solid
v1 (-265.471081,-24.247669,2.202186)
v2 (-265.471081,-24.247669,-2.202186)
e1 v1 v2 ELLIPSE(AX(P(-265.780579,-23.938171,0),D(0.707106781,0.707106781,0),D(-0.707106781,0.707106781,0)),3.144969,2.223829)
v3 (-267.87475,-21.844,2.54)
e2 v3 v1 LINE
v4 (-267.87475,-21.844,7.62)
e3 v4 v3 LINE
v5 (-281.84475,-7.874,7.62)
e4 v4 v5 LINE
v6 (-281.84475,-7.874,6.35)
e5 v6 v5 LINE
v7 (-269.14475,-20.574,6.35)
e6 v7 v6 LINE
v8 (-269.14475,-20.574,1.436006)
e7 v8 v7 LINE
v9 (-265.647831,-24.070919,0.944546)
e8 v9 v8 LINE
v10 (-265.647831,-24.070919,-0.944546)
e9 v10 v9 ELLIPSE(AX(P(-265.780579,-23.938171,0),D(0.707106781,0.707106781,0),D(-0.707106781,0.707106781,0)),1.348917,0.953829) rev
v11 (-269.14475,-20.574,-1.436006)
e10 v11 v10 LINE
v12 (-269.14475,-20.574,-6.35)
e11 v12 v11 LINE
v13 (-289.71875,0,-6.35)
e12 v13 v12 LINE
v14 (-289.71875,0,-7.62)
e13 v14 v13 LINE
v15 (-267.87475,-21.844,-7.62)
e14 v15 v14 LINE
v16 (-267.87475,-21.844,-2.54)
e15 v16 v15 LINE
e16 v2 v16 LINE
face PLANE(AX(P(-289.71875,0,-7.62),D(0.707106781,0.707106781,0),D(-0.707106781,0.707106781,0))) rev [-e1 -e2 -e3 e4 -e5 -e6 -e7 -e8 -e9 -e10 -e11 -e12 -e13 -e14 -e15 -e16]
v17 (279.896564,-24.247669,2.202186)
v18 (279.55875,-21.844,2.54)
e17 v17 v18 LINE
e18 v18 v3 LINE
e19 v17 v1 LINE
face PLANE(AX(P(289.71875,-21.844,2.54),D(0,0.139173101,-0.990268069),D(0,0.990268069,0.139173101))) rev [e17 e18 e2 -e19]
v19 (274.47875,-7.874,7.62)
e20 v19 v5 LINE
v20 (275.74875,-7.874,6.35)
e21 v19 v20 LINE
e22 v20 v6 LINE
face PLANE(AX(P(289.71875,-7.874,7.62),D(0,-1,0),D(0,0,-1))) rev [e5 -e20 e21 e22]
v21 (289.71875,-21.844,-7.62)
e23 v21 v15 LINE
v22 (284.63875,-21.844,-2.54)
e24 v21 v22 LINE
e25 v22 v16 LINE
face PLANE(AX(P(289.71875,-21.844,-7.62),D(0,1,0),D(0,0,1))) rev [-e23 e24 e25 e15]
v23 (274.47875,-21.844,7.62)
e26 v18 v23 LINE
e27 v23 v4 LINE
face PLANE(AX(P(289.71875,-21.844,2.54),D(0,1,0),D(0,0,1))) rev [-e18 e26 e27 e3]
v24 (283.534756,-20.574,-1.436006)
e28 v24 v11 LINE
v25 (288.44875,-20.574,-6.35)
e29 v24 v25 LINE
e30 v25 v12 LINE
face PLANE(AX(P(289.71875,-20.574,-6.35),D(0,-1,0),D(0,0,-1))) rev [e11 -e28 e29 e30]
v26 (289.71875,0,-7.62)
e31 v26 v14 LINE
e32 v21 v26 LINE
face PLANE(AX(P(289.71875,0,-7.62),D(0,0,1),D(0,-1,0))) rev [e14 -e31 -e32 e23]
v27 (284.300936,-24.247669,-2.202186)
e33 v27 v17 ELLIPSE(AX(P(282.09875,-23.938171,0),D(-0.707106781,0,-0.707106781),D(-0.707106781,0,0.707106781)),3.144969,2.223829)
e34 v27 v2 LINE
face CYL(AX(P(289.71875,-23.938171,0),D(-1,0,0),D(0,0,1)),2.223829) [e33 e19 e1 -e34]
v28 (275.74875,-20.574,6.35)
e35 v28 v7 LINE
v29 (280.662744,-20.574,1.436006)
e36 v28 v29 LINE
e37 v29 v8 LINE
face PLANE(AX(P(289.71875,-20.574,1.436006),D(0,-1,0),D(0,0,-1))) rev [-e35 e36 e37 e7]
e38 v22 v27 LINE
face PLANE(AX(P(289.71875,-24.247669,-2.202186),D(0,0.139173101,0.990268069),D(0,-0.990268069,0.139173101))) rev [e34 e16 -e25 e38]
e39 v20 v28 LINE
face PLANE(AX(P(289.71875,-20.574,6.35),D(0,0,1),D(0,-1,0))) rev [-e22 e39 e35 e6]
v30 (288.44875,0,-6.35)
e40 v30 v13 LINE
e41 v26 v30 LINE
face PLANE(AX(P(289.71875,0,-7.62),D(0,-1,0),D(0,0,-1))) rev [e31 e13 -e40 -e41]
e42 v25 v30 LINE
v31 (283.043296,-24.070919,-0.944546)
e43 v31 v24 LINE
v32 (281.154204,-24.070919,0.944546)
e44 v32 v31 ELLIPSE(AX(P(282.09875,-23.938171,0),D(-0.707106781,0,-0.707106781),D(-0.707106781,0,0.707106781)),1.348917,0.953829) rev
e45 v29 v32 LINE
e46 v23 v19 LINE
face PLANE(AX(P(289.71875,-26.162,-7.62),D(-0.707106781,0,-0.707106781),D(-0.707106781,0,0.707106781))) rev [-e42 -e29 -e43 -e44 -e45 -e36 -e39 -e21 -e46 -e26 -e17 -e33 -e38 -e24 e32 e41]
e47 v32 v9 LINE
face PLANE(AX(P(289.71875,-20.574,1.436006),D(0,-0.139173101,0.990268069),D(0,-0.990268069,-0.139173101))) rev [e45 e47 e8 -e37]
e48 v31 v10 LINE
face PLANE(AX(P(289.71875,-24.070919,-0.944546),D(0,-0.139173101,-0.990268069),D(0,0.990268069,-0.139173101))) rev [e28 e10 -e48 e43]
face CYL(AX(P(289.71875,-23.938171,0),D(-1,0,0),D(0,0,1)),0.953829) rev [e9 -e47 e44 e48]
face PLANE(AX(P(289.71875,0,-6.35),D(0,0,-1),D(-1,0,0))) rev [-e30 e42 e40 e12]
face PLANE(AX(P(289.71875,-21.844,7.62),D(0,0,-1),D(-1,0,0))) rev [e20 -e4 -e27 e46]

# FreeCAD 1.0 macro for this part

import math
import FreeCAD as App
import Part
import Sketcher

V = App.Vector
Q = App.Units.Quantity

doc = App.newDocument("Part")
body = doc.addObject("PartDesign::Body", "Body")

sketch1 = doc.addObject("Sketcher::SketchObject", "Sketch")
body.addObject(sketch1)
sketch1.AttachmentSupport = (doc.YZ_Plane, [""])
sketch1.MapMode = "FlatFace"
sketch1.addGeometry([
    Part.LineSegment(V(-21.8, -7.6, 0), V(0, -7.6, 0)),
    Part.LineSegment(V(0, -7.6, 0), V(0, -6.3, 0)),
    Part.LineSegment(V(0, -6.3, 0), V(-20.6, -6.3, 0)),
    Part.LineSegment(V(-20.6, -6.3, 0), V(-20.6, -1.4, 0)),
    Part.LineSegment(V(-20.6, -1.4, 0), V(-24.1, -0.9, 0)),
    Part.ArcOfCircle(Part.Circle(V(-23.9, 0, 0), V(0, 0, 1), 1), math.radians(98), math.radians(262)),
    Part.LineSegment(V(-24.1, 0.9, 0), V(-20.6, 1.4, 0)),
    Part.LineSegment(V(-20.6, 1.4, 0), V(-20.6, 6.3, 0)),
    Part.LineSegment(V(-20.6, 6.3, 0), V(-7.9, 6.3, 0)),
    Part.LineSegment(V(-7.9, 6.3, 0), V(-7.9, 7.6, 0)),
    Part.LineSegment(V(-7.9, 7.6, 0), V(-21.8, 7.6, 0)),
    Part.LineSegment(V(-21.8, 7.6, 0), V(-21.8, 2.5, 0)),
    Part.LineSegment(V(-21.8, 2.5, 0), V(-24.2, 2.2, 0)),
    Part.ArcOfCircle(Part.Circle(V(-23.9, 0, 0), V(0, 0, 1), 2.2), math.radians(98), math.radians(262)),
    Part.LineSegment(V(-24.2, -2.2, 0), V(-21.8, -2.5, 0)),
    Part.LineSegment(V(-21.8, -2.5, 0), V(-21.8, -7.6, 0)),
], False)
sketch1.addConstraint([
    Sketcher.Constraint("Coincident", 0, 2, 1, 1),
    Sketcher.Constraint("Coincident", 1, 2, 2, 1),
    Sketcher.Constraint("Coincident", 2, 2, 3, 1),
    Sketcher.Constraint("Coincident", 3, 2, 4, 1),
    Sketcher.Constraint("Tangent", 4, 2, 5, 2),
    Sketcher.Constraint("Tangent", 5, 1, 6, 1),
    Sketcher.Constraint("Coincident", 6, 2, 7, 1),
    Sketcher.Constraint("Coincident", 7, 2, 8, 1),
    Sketcher.Constraint("Coincident", 8, 2, 9, 1),
    Sketcher.Constraint("Coincident", 9, 2, 10, 1),
    Sketcher.Constraint("Coincident", 10, 2, 11, 1),
    Sketcher.Constraint("Coincident", 11, 2, 12, 1),
    Sketcher.Constraint("Tangent", 12, 2, 13, 1),
    Sketcher.Constraint("Tangent", 13, 2, 14, 1),
    Sketcher.Constraint("Coincident", 14, 2, 15, 1),
    Sketcher.Constraint("Coincident", 15, 2, 0, 1),
    Sketcher.Constraint("Horizontal", 0),
    Sketcher.Constraint("Vertical", 1),
    Sketcher.Constraint("Horizontal", 2),
    Sketcher.Constraint("Vertical", 3),
    Sketcher.Constraint("Vertical", 7),
    Sketcher.Constraint("Horizontal", 8),
    Sketcher.Constraint("Vertical", 9),
    Sketcher.Constraint("Horizontal", 10),
    Sketcher.Constraint("Vertical", 11),
    Sketcher.Constraint("Vertical", 15),
    Sketcher.Constraint("Coincident", 13, 3, 5, 3),
    Sketcher.Constraint("Symmetric", 4, 2, 5, 1, -1),
    Sketcher.Constraint("Symmetric", 2, 2, 7, 2, -1),
    Sketcher.Constraint("Symmetric", 11, 2, 14, 2, -1),
    Sketcher.Constraint("PointOnObject", 0, 2, -2),
    Sketcher.Constraint("Parallel", 6, 12),
    Sketcher.Constraint("Equal", 1, 9),
    Sketcher.Constraint("DistanceX", 8, 1, 8, 2, Q("0.5 in")),
    Sketcher.Constraint("DistanceY", 11, 2, 11, 1, Q("0.2 in")),
    Sketcher.Constraint("Angle", 4, Q("172 deg")),
    Sketcher.Constraint("DistanceX", 0, 1, 0, 2, Q("0.86 in")),
    Sketcher.Constraint("DistanceX", 2, 2, 2, 1, Q("0.81 in")),
    Sketcher.Constraint("DistanceY", 1, 1, 1, 2, Q("0.05 in")),
    Sketcher.Constraint("DistanceY", 0, 2, -1, 1, Q("0.3 in")),
    Sketcher.Constraint("Radius", 5, 0.953829),
    Sketcher.Constraint("Radius", 13, 2.223829),
])
pad1 = doc.addObject("PartDesign::Pad", "Pad")
body.addObject(pad1)
pad1.Profile = sketch1
pad1.Length = Q("22.8125 in")
pad1.Midplane = True

sketch2 = doc.addObject("Sketcher::SketchObject", "Sketch001")
body.addObject(sketch2)
sketch2.AttachmentSupport = (doc.XZ_Plane, [""])
sketch2.MapMode = "FlatFace"
sketch2.addGeometry([
    Part.LineSegment(V(290, -8, 0), V(274, 8, 0)),
    Part.LineSegment(V(274, 8, 0), V(290, 8, 0)),
    Part.LineSegment(V(290, 8, 0), V(290, -8, 0)),
], False)
sketch2.addConstraint([
    Sketcher.Constraint("Coincident", 0, 2, 1, 1),
    Sketcher.Constraint("Coincident", 1, 2, 2, 1),
    Sketcher.Constraint("Coincident", 2, 2, 0, 1),
    Sketcher.Constraint("Horizontal", 1),
    Sketcher.Constraint("Vertical", 2),
    Sketcher.Constraint("Equal", 1, 2),
    Sketcher.Constraint("DistanceX", 1, 1, 1, 2, Q("0.6 in")),
    Sketcher.Constraint("DistanceY", -1, 1, 0, 2, Q("0.3 in")),
    Sketcher.Constraint("DistanceX", -1, 1, 1, 2, Q("11.40625 in")),
])
pocket1 = doc.addObject("PartDesign::Pocket", "Pocket")
body.addObject(pocket1)
pocket1.Profile = sketch2
pocket1.Type = "ThroughAll"
pocket1.Reversed = True

sketch3 = doc.addObject("Sketcher::SketchObject", "Sketch002")
body.addObject(sketch3)
sketch3.AttachmentSupport = (doc.XY_Plane, [""])
sketch3.MapMode = "FlatFace"
sketch3.AttachmentOffset = App.Placement(V(0, 0, 0.3 * 25.4), App.Rotation())
sketch3.addGeometry([
    Part.LineSegment(V(-264, -26, 0), V(-290, 0, 0)),
    Part.LineSegment(V(-290, 0, 0), V(-290, -26, 0)),
    Part.LineSegment(V(-290, -26, 0), V(-264, -26, 0)),
], False)
sketch3.addConstraint([
    Sketcher.Constraint("Coincident", 0, 2, 1, 1),
    Sketcher.Constraint("Coincident", 1, 2, 2, 1),
    Sketcher.Constraint("Coincident", 2, 2, 0, 1),
    Sketcher.Constraint("Vertical", 1),
    Sketcher.Constraint("Horizontal", 2),
    Sketcher.Constraint("PointOnObject", 0, 2, -1),
    Sketcher.Constraint("Equal", 2, 1),
    Sketcher.Constraint("DistanceX", 2, 1, 2, 2, Q("1.03 in")),
    Sketcher.Constraint("DistanceX", 0, 2, -1, 1, Q("11.40625 in")),
])
pocket2 = doc.addObject("PartDesign::Pocket", "Pocket001")
body.addObject(pocket2)
pocket2.Profile = sketch3
pocket2.Type = "ThroughAll"

doc.recompute()
